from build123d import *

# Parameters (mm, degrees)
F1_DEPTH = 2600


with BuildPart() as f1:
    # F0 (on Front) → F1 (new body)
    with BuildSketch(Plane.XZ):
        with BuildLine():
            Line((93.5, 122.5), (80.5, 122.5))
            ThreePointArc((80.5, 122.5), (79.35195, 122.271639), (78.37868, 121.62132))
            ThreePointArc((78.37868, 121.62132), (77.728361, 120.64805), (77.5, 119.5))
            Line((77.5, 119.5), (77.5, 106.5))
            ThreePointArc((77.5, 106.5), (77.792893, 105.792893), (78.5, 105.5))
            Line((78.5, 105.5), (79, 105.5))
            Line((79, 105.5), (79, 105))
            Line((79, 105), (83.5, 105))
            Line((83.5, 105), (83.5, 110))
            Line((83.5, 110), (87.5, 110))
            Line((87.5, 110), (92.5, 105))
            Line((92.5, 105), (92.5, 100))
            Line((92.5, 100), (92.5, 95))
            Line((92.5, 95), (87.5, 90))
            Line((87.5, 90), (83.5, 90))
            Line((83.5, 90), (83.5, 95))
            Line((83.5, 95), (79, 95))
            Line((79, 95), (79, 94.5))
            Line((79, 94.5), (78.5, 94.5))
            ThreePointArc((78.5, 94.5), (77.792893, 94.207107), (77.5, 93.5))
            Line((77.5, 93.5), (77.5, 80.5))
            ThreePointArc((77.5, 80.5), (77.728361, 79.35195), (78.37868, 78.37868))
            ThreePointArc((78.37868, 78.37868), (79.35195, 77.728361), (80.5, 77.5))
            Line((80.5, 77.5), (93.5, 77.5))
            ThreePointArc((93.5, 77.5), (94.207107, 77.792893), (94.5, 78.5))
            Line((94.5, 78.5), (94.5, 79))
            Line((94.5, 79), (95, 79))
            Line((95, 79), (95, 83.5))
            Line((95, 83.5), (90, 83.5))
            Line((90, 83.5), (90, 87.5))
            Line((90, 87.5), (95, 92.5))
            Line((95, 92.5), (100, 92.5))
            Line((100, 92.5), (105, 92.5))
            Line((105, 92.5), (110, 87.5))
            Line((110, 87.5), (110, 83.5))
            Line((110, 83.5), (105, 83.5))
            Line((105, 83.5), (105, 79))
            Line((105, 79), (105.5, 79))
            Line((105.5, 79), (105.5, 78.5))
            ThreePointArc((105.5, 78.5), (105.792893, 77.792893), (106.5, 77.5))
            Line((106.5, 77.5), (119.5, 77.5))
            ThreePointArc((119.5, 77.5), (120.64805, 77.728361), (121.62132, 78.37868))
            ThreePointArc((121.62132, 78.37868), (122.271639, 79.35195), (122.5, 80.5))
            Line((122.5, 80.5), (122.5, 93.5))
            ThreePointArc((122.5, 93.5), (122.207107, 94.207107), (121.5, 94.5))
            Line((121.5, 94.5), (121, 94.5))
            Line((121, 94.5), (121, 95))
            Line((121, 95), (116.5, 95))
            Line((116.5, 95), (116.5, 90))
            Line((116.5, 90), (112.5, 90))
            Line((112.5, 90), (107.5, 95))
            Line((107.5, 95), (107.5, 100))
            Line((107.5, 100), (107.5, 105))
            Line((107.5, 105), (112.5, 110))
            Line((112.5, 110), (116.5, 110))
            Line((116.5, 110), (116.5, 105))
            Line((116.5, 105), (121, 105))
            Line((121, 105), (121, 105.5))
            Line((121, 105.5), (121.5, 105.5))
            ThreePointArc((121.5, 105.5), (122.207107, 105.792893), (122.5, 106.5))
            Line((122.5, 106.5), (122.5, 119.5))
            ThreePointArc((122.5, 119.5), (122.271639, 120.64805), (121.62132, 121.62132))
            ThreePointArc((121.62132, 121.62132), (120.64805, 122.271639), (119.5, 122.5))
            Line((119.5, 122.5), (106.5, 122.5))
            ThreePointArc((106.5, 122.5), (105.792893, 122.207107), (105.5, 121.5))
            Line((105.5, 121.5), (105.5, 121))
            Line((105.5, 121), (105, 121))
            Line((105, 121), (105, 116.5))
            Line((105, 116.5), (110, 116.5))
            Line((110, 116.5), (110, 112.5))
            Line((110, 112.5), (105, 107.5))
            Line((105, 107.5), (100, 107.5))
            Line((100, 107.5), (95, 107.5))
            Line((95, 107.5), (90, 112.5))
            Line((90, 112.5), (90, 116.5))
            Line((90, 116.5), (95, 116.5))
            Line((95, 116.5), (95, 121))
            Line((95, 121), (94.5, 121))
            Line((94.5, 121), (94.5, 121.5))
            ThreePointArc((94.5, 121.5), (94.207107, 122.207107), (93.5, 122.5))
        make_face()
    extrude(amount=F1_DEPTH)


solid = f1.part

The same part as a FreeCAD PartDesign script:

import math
import FreeCAD as App
import Part
import Sketcher
from FreeCAD import Vector
Q = App.Units.Quantity

doc = App.newDocument("Part")
body = doc.addObject("PartDesign::Body", "Body")

# Sketch on XZ plane
sketch1 = doc.addObject("Sketcher::SketchObject", "Sketch")
body.addObject(sketch1)
sketch1.AttachmentSupport = (doc.XZ_Plane, [""])
sketch1.MapMode = "FlatFace"
sketch1.addGeometry(Part.LineSegment(Vector(93.5, 122.5, 0), Vector(80.5, 122.5, 0)), False)
sketch1.addGeometry(Part.ArcOfCircle(Part.Circle(Vector(80.5, 119.5, 0), Vector(0, 0, 1), 3), math.radians(90), math.radians(135)), False)
sketch1.addGeometry(Part.ArcOfCircle(Part.Circle(Vector(80.5, 119.5, 0), Vector(0, 0, 1), 3), math.radians(135), math.radians(180)), False)
sketch1.addGeometry(Part.LineSegment(Vector(77.5, 119.5, 0), Vector(77.5, 106.5, 0)), False)
sketch1.addGeometry(Part.ArcOfCircle(Part.Circle(Vector(78.5, 106.5, 0), Vector(0, 0, 1), 1), math.radians(180), math.radians(270)), False)
sketch1.addGeometry(Part.LineSegment(Vector(78.5, 105.5, 0), Vector(79, 105.5, 0)), False)
sketch1.addGeometry(Part.LineSegment(Vector(79, 105.5, 0), Vector(79, 105, 0)), False)
sketch1.addGeometry(Part.LineSegment(Vector(79, 105, 0), Vector(83.5, 105, 0)), False)
sketch1.addGeometry(Part.LineSegment(Vector(83.5, 105, 0), Vector(83.5, 110, 0)), False)
sketch1.addGeometry(Part.LineSegment(Vector(83.5, 110, 0), Vector(87.5, 110, 0)), False)
sketch1.addGeometry(Part.LineSegment(Vector(87.5, 110, 0), Vector(92.5, 105, 0)), False)
sketch1.addGeometry(Part.LineSegment(Vector(92.5, 105, 0), Vector(92.5, 95, 0)), False)
sketch1.addGeometry(Part.LineSegment(Vector(92.5, 95, 0), Vector(87.5, 90, 0)), False)
sketch1.addGeometry(Part.LineSegment(Vector(87.5, 90, 0), Vector(83.5, 90, 0)), False)
sketch1.addGeometry(Part.LineSegment(Vector(83.5, 90, 0), Vector(83.5, 95, 0)), False)
sketch1.addGeometry(Part.LineSegment(Vector(83.5, 95, 0), Vector(79, 95, 0)), False)
sketch1.addGeometry(Part.LineSegment(Vector(79, 95, 0), Vector(79, 94.5, 0)), False)
sketch1.addGeometry(Part.LineSegment(Vector(79, 94.5, 0), Vector(78.5, 94.5, 0)), False)
sketch1.addGeometry(Part.ArcOfCircle(Part.Circle(Vector(78.5, 93.5, 0), Vector(0, 0, 1), 1), math.radians(90), math.radians(180)), False)
sketch1.addGeometry(Part.LineSegment(Vector(77.5, 93.5, 0), Vector(77.5, 80.5, 0)), False)
sketch1.addGeometry(Part.ArcOfCircle(Part.Circle(Vector(80.5, 80.5, 0), Vector(0, 0, 1), 3), math.radians(180), math.radians(225)), False)
sketch1.addGeometry(Part.ArcOfCircle(Part.Circle(Vector(80.5, 80.5, 0), Vector(0, 0, 1), 3), math.radians(-135), math.radians(-90)), False)
sketch1.addGeometry(Part.LineSegment(Vector(80.5, 77.5, 0), Vector(93.5, 77.5, 0)), False)
sketch1.addGeometry(Part.ArcOfCircle(Part.Circle(Vector(93.5, 78.5, 0), Vector(0, 0, 1), 1), math.radians(-90), math.radians(0)), False)
sketch1.addGeometry(Part.LineSegment(Vector(94.5, 78.5, 0), Vector(94.5, 79, 0)), False)
sketch1.addGeometry(Part.LineSegment(Vector(94.5, 79, 0), Vector(95, 79, 0)), False)
sketch1.addGeometry(Part.LineSegment(Vector(95, 79, 0), Vector(95, 83.5, 0)), False)
sketch1.addGeometry(Part.LineSegment(Vector(95, 83.5, 0), Vector(90, 83.5, 0)), False)
sketch1.addGeometry(Part.LineSegment(Vector(90, 83.5, 0), Vector(90, 87.5, 0)), False)
sketch1.addGeometry(Part.LineSegment(Vector(90, 87.5, 0), Vector(95, 92.5, 0)), False)
sketch1.addGeometry(Part.LineSegment(Vector(95, 92.5, 0), Vector(105, 92.5, 0)), False)
sketch1.addGeometry(Part.LineSegment(Vector(105, 92.5, 0), Vector(110, 87.5, 0)), False)
sketch1.addGeometry(Part.LineSegment(Vector(110, 87.5, 0), Vector(110, 83.5, 0)), False)
sketch1.addGeometry(Part.LineSegment(Vector(110, 83.5, 0), Vector(105, 83.5, 0)), False)
sketch1.addGeometry(Part.LineSegment(Vector(105, 83.5, 0), Vector(105, 79, 0)), False)
sketch1.addGeometry(Part.LineSegment(Vector(105, 79, 0), Vector(105.5, 79, 0)), False)
sketch1.addGeometry(Part.LineSegment(Vector(105.5, 79, 0), Vector(105.5, 78.5, 0)), False)
sketch1.addGeometry(Part.ArcOfCircle(Part.Circle(Vector(106.5, 78.5, 0), Vector(0, 0, 1), 1), math.radians(180), math.radians(270)), False)
sketch1.addGeometry(Part.LineSegment(Vector(106.5, 77.5, 0), Vector(119.5, 77.5, 0)), False)
sketch1.addGeometry(Part.ArcOfCircle(Part.Circle(Vector(119.5, 80.5, 0), Vector(0, 0, 1), 3), math.radians(-90), math.radians(-45)), False)
sketch1.addGeometry(Part.ArcOfCircle(Part.Circle(Vector(119.5, 80.5, 0), Vector(0, 0, 1), 3), math.radians(-45), math.radians(0)), False)
sketch1.addGeometry(Part.LineSegment(Vector(122.5, 80.5, 0), Vector(122.5, 93.5, 0)), False)
sketch1.addGeometry(Part.ArcOfCircle(Part.Circle(Vector(121.5, 93.5, 0), Vector(0, 0, 1), 1), math.radians(0), math.radians(90)), False)
sketch1.addGeometry(Part.LineSegment(Vector(121.5, 94.5, 0), Vector(121, 94.5, 0)), False)
sketch1.addGeometry(Part.LineSegment(Vector(121, 94.5, 0), Vector(121, 95, 0)), False)
sketch1.addGeometry(Part.LineSegment(Vector(121, 95, 0), Vector(116.5, 95, 0)), False)
sketch1.addGeometry(Part.LineSegment(Vector(116.5, 95, 0), Vector(116.5, 90, 0)), False)
sketch1.addGeometry(Part.LineSegment(Vector(116.5, 90, 0), Vector(112.5, 90, 0)), False)
sketch1.addGeometry(Part.LineSegment(Vector(112.5, 90, 0), Vector(107.5, 95, 0)), False)
sketch1.addGeometry(Part.LineSegment(Vector(107.5, 95, 0), Vector(107.5, 105, 0)), False)
sketch1.addGeometry(Part.LineSegment(Vector(107.5, 105, 0), Vector(112.5, 110, 0)), False)
sketch1.addGeometry(Part.LineSegment(Vector(112.5, 110, 0), Vector(116.5, 110, 0)), False)
sketch1.addGeometry(Part.LineSegment(Vector(116.5, 110, 0), Vector(116.5, 105, 0)), False)
sketch1.addGeometry(Part.LineSegment(Vector(116.5, 105, 0), Vector(121, 105, 0)), False)
sketch1.addGeometry(Part.LineSegment(Vector(121, 105, 0), Vector(121, 105.5, 0)), False)
sketch1.addGeometry(Part.LineSegment(Vector(121, 105.5, 0), Vector(121.5, 105.5, 0)), False)
sketch1.addGeometry(Part.ArcOfCircle(Part.Circle(Vector(121.5, 106.5, 0), Vector(0, 0, 1), 1), math.radians(-90), math.radians(0)), False)
sketch1.addGeometry(Part.LineSegment(Vector(122.5, 106.5, 0), Vector(122.5, 119.5, 0)), False)
sketch1.addGeometry(Part.ArcOfCircle(Part.Circle(Vector(119.5, 119.5, 0), Vector(0, 0, 1), 3), math.radians(0), math.radians(45)), False)
sketch1.addGeometry(Part.ArcOfCircle(Part.Circle(Vector(119.5, 119.5, 0), Vector(0, 0, 1), 3), math.radians(45), math.radians(90)), False)
sketch1.addGeometry(Part.LineSegment(Vector(119.5, 122.5, 0), Vector(106.5, 122.5, 0)), False)
sketch1.addGeometry(Part.ArcOfCircle(Part.Circle(Vector(106.5, 121.5, 0), Vector(0, 0, 1), 1), math.radians(90), math.radians(180)), False)
sketch1.addGeometry(Part.LineSegment(Vector(105.5, 121.5, 0), Vector(105.5, 121, 0)), False)
sketch1.addGeometry(Part.LineSegment(Vector(105.5, 121, 0), Vector(105, 121, 0)), False)
sketch1.addGeometry(Part.LineSegment(Vector(105, 121, 0), Vector(105, 116.5, 0)), False)
sketch1.addGeometry(Part.LineSegment(Vector(105, 116.5, 0), Vector(110, 116.5, 0)), False)
sketch1.addGeometry(Part.LineSegment(Vector(110, 116.5, 0), Vector(110, 112.5, 0)), False)
sketch1.addGeometry(Part.LineSegment(Vector(110, 112.5, 0), Vector(105, 107.5, 0)), False)
sketch1.addGeometry(Part.LineSegment(Vector(105, 107.5, 0), Vector(95, 107.5, 0)), False)
sketch1.addGeometry(Part.LineSegment(Vector(95, 107.5, 0), Vector(90, 112.5, 0)), False)
sketch1.addGeometry(Part.LineSegment(Vector(90, 112.5, 0), Vector(90, 116.5, 0)), False)
sketch1.addGeometry(Part.LineSegment(Vector(90, 116.5, 0), Vector(95, 116.5, 0)), False)
sketch1.addGeometry(Part.LineSegment(Vector(95, 116.5, 0), Vector(95, 121, 0)), False)
sketch1.addGeometry(Part.LineSegment(Vector(95, 121, 0), Vector(94.5, 121, 0)), False)
sketch1.addGeometry(Part.LineSegment(Vector(94.5, 121, 0), Vector(94.5, 121.5, 0)), False)
sketch1.addGeometry(Part.ArcOfCircle(Part.Circle(Vector(93.5, 121.5, 0), Vector(0, 0, 1), 1), math.radians(0), math.radians(90)), False)
sketch1.addConstraint(Sketcher.Constraint("Tangent", 0, 2, 1, 1))
sketch1.addConstraint(Sketcher.Constraint("Coincident", 1, 2, 2, 1))
sketch1.addConstraint(Sketcher.Constraint("Tangent", 2, 2, 3, 1))
sketch1.addConstraint(Sketcher.Constraint("Tangent", 3, 2, 4, 1))
sketch1.addConstraint(Sketcher.Constraint("Tangent", 4, 2, 5, 1))
sketch1.addConstraint(Sketcher.Constraint("Coincident", 5, 2, 6, 1))
sketch1.addConstraint(Sketcher.Constraint("Coincident", 6, 2, 7, 1))
sketch1.addConstraint(Sketcher.Constraint("Coincident", 7, 2, 8, 1))
sketch1.addConstraint(Sketcher.Constraint("Coincident", 8, 2, 9, 1))
sketch1.addConstraint(Sketcher.Constraint("Coincident", 9, 2, 10, 1))
sketch1.addConstraint(Sketcher.Constraint("Coincident", 10, 2, 11, 1))
sketch1.addConstraint(Sketcher.Constraint("Coincident", 11, 2, 12, 1))
sketch1.addConstraint(Sketcher.Constraint("Coincident", 12, 2, 13, 1))
sketch1.addConstraint(Sketcher.Constraint("Coincident", 13, 2, 14, 1))
sketch1.addConstraint(Sketcher.Constraint("Coincident", 14, 2, 15, 1))
sketch1.addConstraint(Sketcher.Constraint("Coincident", 15, 2, 16, 1))
sketch1.addConstraint(Sketcher.Constraint("Coincident", 16, 2, 17, 1))
sketch1.addConstraint(Sketcher.Constraint("Tangent", 17, 2, 18, 1))
sketch1.addConstraint(Sketcher.Constraint("Tangent", 18, 2, 19, 1))
sketch1.addConstraint(Sketcher.Constraint("Tangent", 19, 2, 20, 1))
sketch1.addConstraint(Sketcher.Constraint("Coincident", 20, 2, 21, 1))
sketch1.addConstraint(Sketcher.Constraint("Tangent", 21, 2, 22, 1))
sketch1.addConstraint(Sketcher.Constraint("Tangent", 22, 2, 23, 1))
sketch1.addConstraint(Sketcher.Constraint("Tangent", 23, 2, 24, 1))
sketch1.addConstraint(Sketcher.Constraint("Coincident", 24, 2, 25, 1))
sketch1.addConstraint(Sketcher.Constraint("Coincident", 25, 2, 26, 1))
sketch1.addConstraint(Sketcher.Constraint("Coincident", 26, 2, 27, 1))
sketch1.addConstraint(Sketcher.Constraint("Coincident", 27, 2, 28, 1))
sketch1.addConstraint(Sketcher.Constraint("Coincident", 28, 2, 29, 1))
sketch1.addConstraint(Sketcher.Constraint("Coincident", 29, 2, 30, 1))
sketch1.addConstraint(Sketcher.Constraint("Coincident", 30, 2, 31, 1))
sketch1.addConstraint(Sketcher.Constraint("Coincident", 31, 2, 32, 1))
sketch1.addConstraint(Sketcher.Constraint("Coincident", 32, 2, 33, 1))
sketch1.addConstraint(Sketcher.Constraint("Coincident", 33, 2, 34, 1))
sketch1.addConstraint(Sketcher.Constraint("Coincident", 34, 2, 35, 1))
sketch1.addConstraint(Sketcher.Constraint("Coincident", 35, 2, 36, 1))
sketch1.addConstraint(Sketcher.Constraint("Tangent", 36, 2, 37, 1))
sketch1.addConstraint(Sketcher.Constraint("Tangent", 37, 2, 38, 1))
sketch1.addConstraint(Sketcher.Constraint("Tangent", 38, 2, 39, 1))
sketch1.addConstraint(Sketcher.Constraint("Coincident", 39, 2, 40, 1))
sketch1.addConstraint(Sketcher.Constraint("Tangent", 40, 2, 41, 1))
sketch1.addConstraint(Sketcher.Constraint("Tangent", 41, 2, 42, 1))
sketch1.addConstraint(Sketcher.Constraint("Tangent", 42, 2, 43, 1))
sketch1.addConstraint(Sketcher.Constraint("Coincident", 43, 2, 44, 1))
sketch1.addConstraint(Sketcher.Constraint("Coincident", 44, 2, 45, 1))
sketch1.addConstraint(Sketcher.Constraint("Coincident", 45, 2, 46, 1))
sketch1.addConstraint(Sketcher.Constraint("Coincident", 46, 2, 47, 1))
sketch1.addConstraint(Sketcher.Constraint("Coincident", 47, 2, 48, 1))
sketch1.addConstraint(Sketcher.Constraint("Coincident", 48, 2, 49, 1))
sketch1.addConstraint(Sketcher.Constraint("Coincident", 49, 2, 50, 1))
sketch1.addConstraint(Sketcher.Constraint("Coincident", 50, 2, 51, 1))
sketch1.addConstraint(Sketcher.Constraint("Coincident", 51, 2, 52, 1))
sketch1.addConstraint(Sketcher.Constraint("Coincident", 52, 2, 53, 1))
sketch1.addConstraint(Sketcher.Constraint("Coincident", 53, 2, 54, 1))
sketch1.addConstraint(Sketcher.Constraint("Coincident", 54, 2, 55, 1))
sketch1.addConstraint(Sketcher.Constraint("Tangent", 55, 2, 56, 1))
sketch1.addConstraint(Sketcher.Constraint("Tangent", 56, 2, 57, 1))
sketch1.addConstraint(Sketcher.Constraint("Tangent", 57, 2, 58, 1))
sketch1.addConstraint(Sketcher.Constraint("Coincident", 58, 2, 59, 1))
sketch1.addConstraint(Sketcher.Constraint("Tangent", 59, 2, 60, 1))
sketch1.addConstraint(Sketcher.Constraint("Tangent", 60, 2, 61, 1))
sketch1.addConstraint(Sketcher.Constraint("Tangent", 61, 2, 62, 1))
sketch1.addConstraint(Sketcher.Constraint("Coincident", 62, 2, 63, 1))
sketch1.addConstraint(Sketcher.Constraint("Coincident", 63, 2, 64, 1))
sketch1.addConstraint(Sketcher.Constraint("Coincident", 64, 2, 65, 1))
sketch1.addConstraint(Sketcher.Constraint("Coincident", 65, 2, 66, 1))
sketch1.addConstraint(Sketcher.Constraint("Coincident", 66, 2, 67, 1))
sketch1.addConstraint(Sketcher.Constraint("Coincident", 67, 2, 68, 1))
sketch1.addConstraint(Sketcher.Constraint("Coincident", 68, 2, 69, 1))
sketch1.addConstraint(Sketcher.Constraint("Coincident", 69, 2, 70, 1))
sketch1.addConstraint(Sketcher.Constraint("Coincident", 70, 2, 71, 1))
sketch1.addConstraint(Sketcher.Constraint("Coincident", 71, 2, 72, 1))
sketch1.addConstraint(Sketcher.Constraint("Coincident", 72, 2, 73, 1))
sketch1.addConstraint(Sketcher.Constraint("Coincident", 73, 2, 74, 1))
sketch1.addConstraint(Sketcher.Constraint("Tangent", 74, 2, 75, 1))
sketch1.addConstraint(Sketcher.Constraint("Tangent", 75, 2, 0, 1))
sketch1.addConstraint(Sketcher.Constraint("Horizontal", 0))
sketch1.addConstraint(Sketcher.Constraint("Vertical", 3))
sketch1.addConstraint(Sketcher.Constraint("Horizontal", 5))
sketch1.addConstraint(Sketcher.Constraint("Vertical", 6))
sketch1.addConstraint(Sketcher.Constraint("Horizontal", 7))
sketch1.addConstraint(Sketcher.Constraint("Vertical", 8))
sketch1.addConstraint(Sketcher.Constraint("Horizontal", 9))
sketch1.addConstraint(Sketcher.Constraint("Vertical", 11))
sketch1.addConstraint(Sketcher.Constraint("Horizontal", 13))
sketch1.addConstraint(Sketcher.Constraint("Vertical", 14))
sketch1.addConstraint(Sketcher.Constraint("Horizontal", 15))
sketch1.addConstraint(Sketcher.Constraint("Vertical", 16))
sketch1.addConstraint(Sketcher.Constraint("Horizontal", 17))
sketch1.addConstraint(Sketcher.Constraint("Vertical", 19))
sketch1.addConstraint(Sketcher.Constraint("Horizontal", 22))
sketch1.addConstraint(Sketcher.Constraint("Vertical", 24))
sketch1.addConstraint(Sketcher.Constraint("Horizontal", 25))
sketch1.addConstraint(Sketcher.Constraint("Vertical", 26))
sketch1.addConstraint(Sketcher.Constraint("Horizontal", 27))
sketch1.addConstraint(Sketcher.Constraint("Vertical", 28))
sketch1.addConstraint(Sketcher.Constraint("Horizontal", 30))
sketch1.addConstraint(Sketcher.Constraint("Vertical", 32))
sketch1.addConstraint(Sketcher.Constraint("Horizontal", 33))
sketch1.addConstraint(Sketcher.Constraint("Vertical", 34))
sketch1.addConstraint(Sketcher.Constraint("Horizontal", 35))
sketch1.addConstraint(Sketcher.Constraint("Vertical", 36))
sketch1.addConstraint(Sketcher.Constraint("Horizontal", 38))
sketch1.addConstraint(Sketcher.Constraint("Vertical", 41))
sketch1.addConstraint(Sketcher.Constraint("Horizontal", 43))
sketch1.addConstraint(Sketcher.Constraint("Vertical", 44))
sketch1.addConstraint(Sketcher.Constraint("Horizontal", 45))
sketch1.addConstraint(Sketcher.Constraint("Vertical", 46))
sketch1.addConstraint(Sketcher.Constraint("Horizontal", 47))
sketch1.addConstraint(Sketcher.Constraint("Vertical", 49))
sketch1.addConstraint(Sketcher.Constraint("Horizontal", 51))
sketch1.addConstraint(Sketcher.Constraint("Vertical", 52))
sketch1.addConstraint(Sketcher.Constraint("Horizontal", 53))
sketch1.addConstraint(Sketcher.Constraint("Vertical", 54))
sketch1.addConstraint(Sketcher.Constraint("Horizontal", 55))
sketch1.addConstraint(Sketcher.Constraint("Vertical", 57))
sketch1.addConstraint(Sketcher.Constraint("Horizontal", 60))
sketch1.addConstraint(Sketcher.Constraint("Vertical", 62))
sketch1.addConstraint(Sketcher.Constraint("Horizontal", 63))
sketch1.addConstraint(Sketcher.Constraint("Vertical", 64))
sketch1.addConstraint(Sketcher.Constraint("Horizontal", 65))
sketch1.addConstraint(Sketcher.Constraint("Vertical", 66))
sketch1.addConstraint(Sketcher.Constraint("Horizontal", 68))
sketch1.addConstraint(Sketcher.Constraint("Vertical", 70))
sketch1.addConstraint(Sketcher.Constraint("Horizontal", 71))
sketch1.addConstraint(Sketcher.Constraint("Vertical", 72))
sketch1.addConstraint(Sketcher.Constraint("Horizontal", 73))
sketch1.addConstraint(Sketcher.Constraint("Vertical", 74))
sketch1.addConstraint(Sketcher.Constraint("Coincident", 2, 3, 1, 3))
sketch1.addConstraint(Sketcher.Constraint("Coincident", 21, 3, 20, 3))
sketch1.addConstraint(Sketcher.Constraint("Coincident", 40, 3, 39, 3))
sketch1.addConstraint(Sketcher.Constraint("Coincident", 59, 3, 58, 3))
sketch1.addConstraint(Sketcher.Constraint("Equal", 4, 18))
sketch1.addConstraint(Sketcher.Constraint("Equal", 2, 20))
sketch1.addConstraint(Sketcher.Constraint("Equal", 18, 23))
sketch1.addConstraint(Sketcher.Constraint("Equal", 23, 37))
sketch1.addConstraint(Sketcher.Constraint("Equal", 21, 39))
sketch1.addConstraint(Sketcher.Constraint("Equal", 37, 42))
sketch1.addConstraint(Sketcher.Constraint("Equal", 42, 56))
sketch1.addConstraint(Sketcher.Constraint("Equal", 40, 58))
sketch1.addConstraint(Sketcher.Constraint("Equal", 56, 61))
sketch1.addConstraint(Sketcher.Constraint("Equal", 61, 75))
sketch1.addConstraint(Sketcher.Constraint("Perpendicular", 10, 12))
sketch1.addConstraint(Sketcher.Constraint("Parallel", 12, 29))
sketch1.addConstraint(Sketcher.Constraint("Perpendicular", 29, 31))
sketch1.addConstraint(Sketcher.Constraint("Parallel", 31, 48))
sketch1.addConstraint(Sketcher.Constraint("Perpendicular", 48, 50))
sketch1.addConstraint(Sketcher.Constraint("Parallel", 50, 67))
sketch1.addConstraint(Sketcher.Constraint("Perpendicular", 67, 69))
sketch1.addConstraint(Sketcher.Constraint("Horizontal", 23, 3, 37, 3))
sketch1.addConstraint(Sketcher.Constraint("Horizontal", 18, 3, 42, 3))
sketch1.addConstraint(Sketcher.Constraint("Horizontal", 4, 3, 56, 3))
sketch1.addConstraint(Sketcher.Constraint("Horizontal", 2, 3, 58, 3))
sketch1.addConstraint(Sketcher.Constraint("Horizontal", 7, 2, 10, 2))
sketch1.addConstraint(Sketcher.Constraint("Horizontal", 11, 2, 14, 2))
sketch1.addConstraint(Sketcher.Constraint("Horizontal", 28, 2, 31, 2))
sketch1.addConstraint(Sketcher.Constraint("Horizontal", 27, 2, 32, 2))
sketch1.addConstraint(Sketcher.Constraint("Horizontal", 25, 2, 34, 2))
sketch1.addConstraint(Sketcher.Constraint("Horizontal", 20, 2, 39, 2))
sketch1.addConstraint(Sketcher.Constraint("Horizontal", 15, 2, 44, 2))
sketch1.addConstraint(Sketcher.Constraint("Horizontal", 13, 2, 46, 2))
sketch1.addConstraint(Sketcher.Constraint("Horizontal", 45, 2, 48, 2))
sketch1.addConstraint(Sketcher.Constraint("Horizontal", 10, 2, 49, 2))
sketch1.addConstraint(Sketcher.Constraint("Horizontal", 9, 2, 50, 2))
sketch1.addConstraint(Sketcher.Constraint("Horizontal", 49, 2, 52, 2))
sketch1.addConstraint(Sketcher.Constraint("Horizontal", 1, 2, 58, 2))
sketch1.addConstraint(Sketcher.Constraint("Horizontal", 66, 2, 69, 2))
sketch1.addConstraint(Sketcher.Constraint("Horizontal", 65, 2, 70, 2))
sketch1.addConstraint(Sketcher.Constraint("Horizontal", 63, 2, 72, 2))
sketch1.addConstraint(Sketcher.Constraint("Vertical", 4, 3, 18, 3))
sketch1.addConstraint(Sketcher.Constraint("Vertical", 42, 3, 56, 3))
sketch1.addConstraint(Sketcher.Constraint("Vertical", 37, 3, 61, 3))
sketch1.addConstraint(Sketcher.Constraint("Vertical", 23, 3, 75, 3))
sketch1.addConstraint(Sketcher.Constraint("Vertical", 9, 2, 12, 2))
sketch1.addConstraint(Sketcher.Constraint("Vertical", 8, 2, 13, 2))
sketch1.addConstraint(Sketcher.Constraint("Vertical", 6, 2, 15, 2))
sketch1.addConstraint(Sketcher.Constraint("Vertical", 1, 2, 20, 2))
sketch1.addConstraint(Sketcher.Constraint("Vertical", 26, 2, 29, 2))
sketch1.addConstraint(Sketcher.Constraint("Vertical", 30, 2, 33, 2))
sketch1.addConstraint(Sketcher.Constraint("Vertical", 47, 2, 50, 2))
sketch1.addConstraint(Sketcher.Constraint("Vertical", 46, 2, 51, 2))
sketch1.addConstraint(Sketcher.Constraint("Vertical", 44, 2, 53, 2))
sketch1.addConstraint(Sketcher.Constraint("Vertical", 34, 2, 63, 2))
sketch1.addConstraint(Sketcher.Constraint("Vertical", 32, 2, 65, 2))
sketch1.addConstraint(Sketcher.Constraint("Vertical", 64, 2, 67, 2))
sketch1.addConstraint(Sketcher.Constraint("Vertical", 29, 2, 68, 2))
sketch1.addConstraint(Sketcher.Constraint("Vertical", 68, 2, 71, 2))
sketch1.addConstraint(Sketcher.Constraint("Equal", 17, 25))
sketch1.addConstraint(Sketcher.Constraint("Equal", 25, 35))
sketch1.addConstraint(Sketcher.Constraint("Equal", 22, 38))
sketch1.addConstraint(Sketcher.Constraint("Equal", 35, 43))
sketch1.addConstraint(Sketcher.Constraint("Equal", 15, 45))
sketch1.addConstraint(Sketcher.Constraint("Equal", 13, 47))
sketch1.addConstraint(Sketcher.Constraint("Equal", 60, 3))
sketch1.addConstraint(Sketcher.Constraint("Equal", 73, 6))
sketch1.addConstraint(Sketcher.Constraint("Equal", 71, 8))
sketch1.addConstraint(Sketcher.Constraint("Equal", 68, 11))
sketch1.addConstraint(Sketcher.Constraint("Equal", 6, 16))
sketch1.addConstraint(Sketcher.Constraint("Equal", 3, 19))
sketch1.addConstraint(Sketcher.Constraint("Equal", 16, 24))
sketch1.addConstraint(Sketcher.Constraint("Equal", 53, 26))
sketch1.addConstraint(Sketcher.Constraint("Equal", 51, 28))
sketch1.addConstraint(Sketcher.Constraint("Equal", 54, 62))
sketch1.addConstraint(Sketcher.Constraint("Equal", 34, 64))
sketch1.addConstraint(Sketcher.Constraint("Equal", 32, 66))
sketch1.addConstraint(Sketcher.Constraint("Radius", 4, Q("0.999999 mm")))
sketch1.addConstraint(Sketcher.Constraint("DistanceX", 0, 2, 0, 1, Q("13 mm")))
sketch1.addConstraint(Sketcher.Constraint("DistanceX", 9, 1, 9, 2, Q("4 mm")))
sketch1.addConstraint(Sketcher.Constraint("DistanceX", 27, 2, 27, 1, Q("5 mm")))
sketch1.addConstraint(Sketcher.Constraint("DistanceX", 30, 1, 30, 2, Q("10 mm")))
sketch1.addConstraint(Sketcher.Constraint("DistanceX", 5, 1, 5, 2, Q("0.5 mm")))
sketch1.addConstraint(Sketcher.Constraint("DistanceX", 7, 1, 7, 2, Q("4.5 mm")))
sketch1.addConstraint(Sketcher.Constraint("DistanceX", -1, 1, 5, 2, Q("79 mm")))
sketch1.addConstraint(Sketcher.Constraint("DistanceY", -1, 1, 6, 2, Q("105 mm")))
sketch1.addConstraint(Sketcher.Constraint("DistanceY", -1, 1, 24, 2, Q("79 mm")))
sketch1.addConstraint(Sketcher.Constraint("DistanceX", -1, 1, 1, 2, Q("78.37868 mm")))
pad1 = doc.addObject("PartDesign::Pad", "Pad")
body.addObject(pad1)
pad1.Profile = sketch1
pad1.Length = 2600

doc.recompute()
